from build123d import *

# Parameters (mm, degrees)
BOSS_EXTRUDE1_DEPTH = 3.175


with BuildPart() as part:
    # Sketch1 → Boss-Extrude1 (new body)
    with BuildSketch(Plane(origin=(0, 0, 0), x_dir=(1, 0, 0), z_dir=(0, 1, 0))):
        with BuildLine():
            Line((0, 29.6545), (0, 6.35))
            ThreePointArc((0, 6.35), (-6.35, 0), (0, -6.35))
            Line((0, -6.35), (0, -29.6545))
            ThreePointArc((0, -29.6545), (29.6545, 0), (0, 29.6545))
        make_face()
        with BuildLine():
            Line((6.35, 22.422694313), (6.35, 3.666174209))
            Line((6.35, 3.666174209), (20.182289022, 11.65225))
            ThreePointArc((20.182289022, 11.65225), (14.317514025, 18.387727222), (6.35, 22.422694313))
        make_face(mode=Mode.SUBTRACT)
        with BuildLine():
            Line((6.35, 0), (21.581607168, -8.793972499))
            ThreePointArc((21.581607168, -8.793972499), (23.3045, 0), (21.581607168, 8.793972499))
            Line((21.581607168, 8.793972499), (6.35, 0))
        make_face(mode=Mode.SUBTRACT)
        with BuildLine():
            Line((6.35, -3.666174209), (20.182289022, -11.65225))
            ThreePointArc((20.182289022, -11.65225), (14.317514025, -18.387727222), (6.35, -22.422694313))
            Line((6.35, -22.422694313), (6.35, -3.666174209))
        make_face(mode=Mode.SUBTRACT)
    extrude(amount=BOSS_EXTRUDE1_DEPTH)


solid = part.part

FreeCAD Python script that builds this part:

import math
import FreeCAD as App
import Part
import Sketcher

V = App.Vector
Q = App.Units.Quantity

doc = App.newDocument("Part")
body = doc.addObject("PartDesign::Body", "Body")

sketch1 = body.newObject("Sketcher::SketchObject", "Sketch")
sketch1.AttachmentSupport = (doc.getObject("XZ_Plane"), [""])
sketch1.MapMode = "FlatFace"
sketch1.addGeometry([
    Part.LineSegment(V(0, -30, 0), V(0, -6, 0)),
    Part.ArcOfCircle(Part.Circle(V(0, 0, 0), V(0, 0, 1), 6), math.radians(90), math.radians(270)),
    Part.LineSegment(V(0, 6, 0), V(0, 30, 0)),
    Part.ArcOfCircle(Part.Circle(V(0, 0, 0), V(0, 0, 1), 30), math.radians(-90), math.radians(90)),
    Part.LineSegment(V(6, 22, 0), V(6, 4, 0)),
    Part.LineSegment(V(6, 4, 0), V(20, 12, 0)),
    Part.ArcOfCircle(Part.Circle(V(0, 0, 0), V(0, 0, 1), 23), math.radians(30), math.radians(74)),
    Part.LineSegment(V(6, -4, 0), V(6, -22, 0)),
    Part.ArcOfCircle(Part.Circle(V(0, 0, 0), V(0, 0, 1), 23), math.radians(-74), math.radians(-30)),
    Part.LineSegment(V(20, -12, 0), V(6, -4, 0)),
    Part.LineSegment(V(22, 9, 0), V(6, 0, 0)),
    Part.LineSegment(V(6, 0, 0), V(22, -9, 0)),
    Part.ArcOfCircle(Part.Circle(V(0, 0, 0), V(0, 0, 1), 23), math.radians(-22), math.radians(22)),
], False)
sketch1.addConstraint([
    Sketcher.Constraint("Coincident", 0, 2, 1, 2),
    Sketcher.Constraint("Coincident", 1, 1, 2, 1),
    Sketcher.Constraint("Coincident", 2, 2, 3, 2),
    Sketcher.Constraint("Coincident", 3, 1, 0, 1),
    Sketcher.Constraint("Coincident", 4, 2, 5, 1),
    Sketcher.Constraint("Coincident", 5, 2, 6, 1),
    Sketcher.Constraint("Coincident", 6, 2, 4, 1),
    Sketcher.Constraint("Coincident", 7, 2, 8, 1),
    Sketcher.Constraint("Coincident", 8, 2, 9, 1),
    Sketcher.Constraint("Coincident", 9, 2, 7, 1),
    Sketcher.Constraint("Coincident", 10, 2, 11, 1),
    Sketcher.Constraint("Coincident", 11, 2, 12, 1),
    Sketcher.Constraint("Coincident", 12, 2, 10, 1),
    Sketcher.Constraint("Vertical", 0),
    Sketcher.Constraint("Vertical", 2),
    Sketcher.Constraint("Vertical", 4),
    Sketcher.Constraint("Vertical", 7),
    Sketcher.Constraint("Coincident", 1, 3, -1, 1),
    Sketcher.Constraint("Coincident", 3, 3, -1, 1),
    Sketcher.Constraint("Coincident", 6, 3, -1, 1),
    Sketcher.Constraint("Coincident", 8, 3, -1, 1),
    Sketcher.Constraint("Coincident", 12, 3, -1, 1),
    Sketcher.Constraint("Equal", 6, 8),
    Sketcher.Constraint("Equal", 8, 12),
    Sketcher.Constraint("Symmetric", 4, 2, 9, 2, -1),
    Sketcher.Constraint("PointOnObject", 0, 2, -2),
    Sketcher.Constraint("PointOnObject", 1, 1, -2),
    Sketcher.Constraint("PointOnObject", 10, 2, -1),
    Sketcher.Constraint("Parallel", 5, 10),
    Sketcher.Constraint("Parallel", 9, 11),
    Sketcher.Constraint("Vertical", 5, 2, 8, 2),
    Sketcher.Constraint("Vertical", 9, 2, 10, 2),
    Sketcher.Constraint("Radius", 1, Q("0.25 in")),
    Sketcher.Constraint("Angle", 5, Q("30 deg")),
    Sketcher.Constraint("Radius", 3, Q("1.1675 in")),
    Sketcher.Constraint("Radius", 6, Q("0.9175 in")),
    Sketcher.Constraint("DistanceX", -1, 1, 4, 2, Q("0.25 in")),
    Sketcher.Constraint("DistanceY", 4, 2, 4, 1, 18.75652),
])
pad1 = body.newObject("PartDesign::Pad", "Pad")
pad1.Profile = sketch1
pad1.Length = Q("0.125 in")
pad1.Reversed = True

doc.recompute()
